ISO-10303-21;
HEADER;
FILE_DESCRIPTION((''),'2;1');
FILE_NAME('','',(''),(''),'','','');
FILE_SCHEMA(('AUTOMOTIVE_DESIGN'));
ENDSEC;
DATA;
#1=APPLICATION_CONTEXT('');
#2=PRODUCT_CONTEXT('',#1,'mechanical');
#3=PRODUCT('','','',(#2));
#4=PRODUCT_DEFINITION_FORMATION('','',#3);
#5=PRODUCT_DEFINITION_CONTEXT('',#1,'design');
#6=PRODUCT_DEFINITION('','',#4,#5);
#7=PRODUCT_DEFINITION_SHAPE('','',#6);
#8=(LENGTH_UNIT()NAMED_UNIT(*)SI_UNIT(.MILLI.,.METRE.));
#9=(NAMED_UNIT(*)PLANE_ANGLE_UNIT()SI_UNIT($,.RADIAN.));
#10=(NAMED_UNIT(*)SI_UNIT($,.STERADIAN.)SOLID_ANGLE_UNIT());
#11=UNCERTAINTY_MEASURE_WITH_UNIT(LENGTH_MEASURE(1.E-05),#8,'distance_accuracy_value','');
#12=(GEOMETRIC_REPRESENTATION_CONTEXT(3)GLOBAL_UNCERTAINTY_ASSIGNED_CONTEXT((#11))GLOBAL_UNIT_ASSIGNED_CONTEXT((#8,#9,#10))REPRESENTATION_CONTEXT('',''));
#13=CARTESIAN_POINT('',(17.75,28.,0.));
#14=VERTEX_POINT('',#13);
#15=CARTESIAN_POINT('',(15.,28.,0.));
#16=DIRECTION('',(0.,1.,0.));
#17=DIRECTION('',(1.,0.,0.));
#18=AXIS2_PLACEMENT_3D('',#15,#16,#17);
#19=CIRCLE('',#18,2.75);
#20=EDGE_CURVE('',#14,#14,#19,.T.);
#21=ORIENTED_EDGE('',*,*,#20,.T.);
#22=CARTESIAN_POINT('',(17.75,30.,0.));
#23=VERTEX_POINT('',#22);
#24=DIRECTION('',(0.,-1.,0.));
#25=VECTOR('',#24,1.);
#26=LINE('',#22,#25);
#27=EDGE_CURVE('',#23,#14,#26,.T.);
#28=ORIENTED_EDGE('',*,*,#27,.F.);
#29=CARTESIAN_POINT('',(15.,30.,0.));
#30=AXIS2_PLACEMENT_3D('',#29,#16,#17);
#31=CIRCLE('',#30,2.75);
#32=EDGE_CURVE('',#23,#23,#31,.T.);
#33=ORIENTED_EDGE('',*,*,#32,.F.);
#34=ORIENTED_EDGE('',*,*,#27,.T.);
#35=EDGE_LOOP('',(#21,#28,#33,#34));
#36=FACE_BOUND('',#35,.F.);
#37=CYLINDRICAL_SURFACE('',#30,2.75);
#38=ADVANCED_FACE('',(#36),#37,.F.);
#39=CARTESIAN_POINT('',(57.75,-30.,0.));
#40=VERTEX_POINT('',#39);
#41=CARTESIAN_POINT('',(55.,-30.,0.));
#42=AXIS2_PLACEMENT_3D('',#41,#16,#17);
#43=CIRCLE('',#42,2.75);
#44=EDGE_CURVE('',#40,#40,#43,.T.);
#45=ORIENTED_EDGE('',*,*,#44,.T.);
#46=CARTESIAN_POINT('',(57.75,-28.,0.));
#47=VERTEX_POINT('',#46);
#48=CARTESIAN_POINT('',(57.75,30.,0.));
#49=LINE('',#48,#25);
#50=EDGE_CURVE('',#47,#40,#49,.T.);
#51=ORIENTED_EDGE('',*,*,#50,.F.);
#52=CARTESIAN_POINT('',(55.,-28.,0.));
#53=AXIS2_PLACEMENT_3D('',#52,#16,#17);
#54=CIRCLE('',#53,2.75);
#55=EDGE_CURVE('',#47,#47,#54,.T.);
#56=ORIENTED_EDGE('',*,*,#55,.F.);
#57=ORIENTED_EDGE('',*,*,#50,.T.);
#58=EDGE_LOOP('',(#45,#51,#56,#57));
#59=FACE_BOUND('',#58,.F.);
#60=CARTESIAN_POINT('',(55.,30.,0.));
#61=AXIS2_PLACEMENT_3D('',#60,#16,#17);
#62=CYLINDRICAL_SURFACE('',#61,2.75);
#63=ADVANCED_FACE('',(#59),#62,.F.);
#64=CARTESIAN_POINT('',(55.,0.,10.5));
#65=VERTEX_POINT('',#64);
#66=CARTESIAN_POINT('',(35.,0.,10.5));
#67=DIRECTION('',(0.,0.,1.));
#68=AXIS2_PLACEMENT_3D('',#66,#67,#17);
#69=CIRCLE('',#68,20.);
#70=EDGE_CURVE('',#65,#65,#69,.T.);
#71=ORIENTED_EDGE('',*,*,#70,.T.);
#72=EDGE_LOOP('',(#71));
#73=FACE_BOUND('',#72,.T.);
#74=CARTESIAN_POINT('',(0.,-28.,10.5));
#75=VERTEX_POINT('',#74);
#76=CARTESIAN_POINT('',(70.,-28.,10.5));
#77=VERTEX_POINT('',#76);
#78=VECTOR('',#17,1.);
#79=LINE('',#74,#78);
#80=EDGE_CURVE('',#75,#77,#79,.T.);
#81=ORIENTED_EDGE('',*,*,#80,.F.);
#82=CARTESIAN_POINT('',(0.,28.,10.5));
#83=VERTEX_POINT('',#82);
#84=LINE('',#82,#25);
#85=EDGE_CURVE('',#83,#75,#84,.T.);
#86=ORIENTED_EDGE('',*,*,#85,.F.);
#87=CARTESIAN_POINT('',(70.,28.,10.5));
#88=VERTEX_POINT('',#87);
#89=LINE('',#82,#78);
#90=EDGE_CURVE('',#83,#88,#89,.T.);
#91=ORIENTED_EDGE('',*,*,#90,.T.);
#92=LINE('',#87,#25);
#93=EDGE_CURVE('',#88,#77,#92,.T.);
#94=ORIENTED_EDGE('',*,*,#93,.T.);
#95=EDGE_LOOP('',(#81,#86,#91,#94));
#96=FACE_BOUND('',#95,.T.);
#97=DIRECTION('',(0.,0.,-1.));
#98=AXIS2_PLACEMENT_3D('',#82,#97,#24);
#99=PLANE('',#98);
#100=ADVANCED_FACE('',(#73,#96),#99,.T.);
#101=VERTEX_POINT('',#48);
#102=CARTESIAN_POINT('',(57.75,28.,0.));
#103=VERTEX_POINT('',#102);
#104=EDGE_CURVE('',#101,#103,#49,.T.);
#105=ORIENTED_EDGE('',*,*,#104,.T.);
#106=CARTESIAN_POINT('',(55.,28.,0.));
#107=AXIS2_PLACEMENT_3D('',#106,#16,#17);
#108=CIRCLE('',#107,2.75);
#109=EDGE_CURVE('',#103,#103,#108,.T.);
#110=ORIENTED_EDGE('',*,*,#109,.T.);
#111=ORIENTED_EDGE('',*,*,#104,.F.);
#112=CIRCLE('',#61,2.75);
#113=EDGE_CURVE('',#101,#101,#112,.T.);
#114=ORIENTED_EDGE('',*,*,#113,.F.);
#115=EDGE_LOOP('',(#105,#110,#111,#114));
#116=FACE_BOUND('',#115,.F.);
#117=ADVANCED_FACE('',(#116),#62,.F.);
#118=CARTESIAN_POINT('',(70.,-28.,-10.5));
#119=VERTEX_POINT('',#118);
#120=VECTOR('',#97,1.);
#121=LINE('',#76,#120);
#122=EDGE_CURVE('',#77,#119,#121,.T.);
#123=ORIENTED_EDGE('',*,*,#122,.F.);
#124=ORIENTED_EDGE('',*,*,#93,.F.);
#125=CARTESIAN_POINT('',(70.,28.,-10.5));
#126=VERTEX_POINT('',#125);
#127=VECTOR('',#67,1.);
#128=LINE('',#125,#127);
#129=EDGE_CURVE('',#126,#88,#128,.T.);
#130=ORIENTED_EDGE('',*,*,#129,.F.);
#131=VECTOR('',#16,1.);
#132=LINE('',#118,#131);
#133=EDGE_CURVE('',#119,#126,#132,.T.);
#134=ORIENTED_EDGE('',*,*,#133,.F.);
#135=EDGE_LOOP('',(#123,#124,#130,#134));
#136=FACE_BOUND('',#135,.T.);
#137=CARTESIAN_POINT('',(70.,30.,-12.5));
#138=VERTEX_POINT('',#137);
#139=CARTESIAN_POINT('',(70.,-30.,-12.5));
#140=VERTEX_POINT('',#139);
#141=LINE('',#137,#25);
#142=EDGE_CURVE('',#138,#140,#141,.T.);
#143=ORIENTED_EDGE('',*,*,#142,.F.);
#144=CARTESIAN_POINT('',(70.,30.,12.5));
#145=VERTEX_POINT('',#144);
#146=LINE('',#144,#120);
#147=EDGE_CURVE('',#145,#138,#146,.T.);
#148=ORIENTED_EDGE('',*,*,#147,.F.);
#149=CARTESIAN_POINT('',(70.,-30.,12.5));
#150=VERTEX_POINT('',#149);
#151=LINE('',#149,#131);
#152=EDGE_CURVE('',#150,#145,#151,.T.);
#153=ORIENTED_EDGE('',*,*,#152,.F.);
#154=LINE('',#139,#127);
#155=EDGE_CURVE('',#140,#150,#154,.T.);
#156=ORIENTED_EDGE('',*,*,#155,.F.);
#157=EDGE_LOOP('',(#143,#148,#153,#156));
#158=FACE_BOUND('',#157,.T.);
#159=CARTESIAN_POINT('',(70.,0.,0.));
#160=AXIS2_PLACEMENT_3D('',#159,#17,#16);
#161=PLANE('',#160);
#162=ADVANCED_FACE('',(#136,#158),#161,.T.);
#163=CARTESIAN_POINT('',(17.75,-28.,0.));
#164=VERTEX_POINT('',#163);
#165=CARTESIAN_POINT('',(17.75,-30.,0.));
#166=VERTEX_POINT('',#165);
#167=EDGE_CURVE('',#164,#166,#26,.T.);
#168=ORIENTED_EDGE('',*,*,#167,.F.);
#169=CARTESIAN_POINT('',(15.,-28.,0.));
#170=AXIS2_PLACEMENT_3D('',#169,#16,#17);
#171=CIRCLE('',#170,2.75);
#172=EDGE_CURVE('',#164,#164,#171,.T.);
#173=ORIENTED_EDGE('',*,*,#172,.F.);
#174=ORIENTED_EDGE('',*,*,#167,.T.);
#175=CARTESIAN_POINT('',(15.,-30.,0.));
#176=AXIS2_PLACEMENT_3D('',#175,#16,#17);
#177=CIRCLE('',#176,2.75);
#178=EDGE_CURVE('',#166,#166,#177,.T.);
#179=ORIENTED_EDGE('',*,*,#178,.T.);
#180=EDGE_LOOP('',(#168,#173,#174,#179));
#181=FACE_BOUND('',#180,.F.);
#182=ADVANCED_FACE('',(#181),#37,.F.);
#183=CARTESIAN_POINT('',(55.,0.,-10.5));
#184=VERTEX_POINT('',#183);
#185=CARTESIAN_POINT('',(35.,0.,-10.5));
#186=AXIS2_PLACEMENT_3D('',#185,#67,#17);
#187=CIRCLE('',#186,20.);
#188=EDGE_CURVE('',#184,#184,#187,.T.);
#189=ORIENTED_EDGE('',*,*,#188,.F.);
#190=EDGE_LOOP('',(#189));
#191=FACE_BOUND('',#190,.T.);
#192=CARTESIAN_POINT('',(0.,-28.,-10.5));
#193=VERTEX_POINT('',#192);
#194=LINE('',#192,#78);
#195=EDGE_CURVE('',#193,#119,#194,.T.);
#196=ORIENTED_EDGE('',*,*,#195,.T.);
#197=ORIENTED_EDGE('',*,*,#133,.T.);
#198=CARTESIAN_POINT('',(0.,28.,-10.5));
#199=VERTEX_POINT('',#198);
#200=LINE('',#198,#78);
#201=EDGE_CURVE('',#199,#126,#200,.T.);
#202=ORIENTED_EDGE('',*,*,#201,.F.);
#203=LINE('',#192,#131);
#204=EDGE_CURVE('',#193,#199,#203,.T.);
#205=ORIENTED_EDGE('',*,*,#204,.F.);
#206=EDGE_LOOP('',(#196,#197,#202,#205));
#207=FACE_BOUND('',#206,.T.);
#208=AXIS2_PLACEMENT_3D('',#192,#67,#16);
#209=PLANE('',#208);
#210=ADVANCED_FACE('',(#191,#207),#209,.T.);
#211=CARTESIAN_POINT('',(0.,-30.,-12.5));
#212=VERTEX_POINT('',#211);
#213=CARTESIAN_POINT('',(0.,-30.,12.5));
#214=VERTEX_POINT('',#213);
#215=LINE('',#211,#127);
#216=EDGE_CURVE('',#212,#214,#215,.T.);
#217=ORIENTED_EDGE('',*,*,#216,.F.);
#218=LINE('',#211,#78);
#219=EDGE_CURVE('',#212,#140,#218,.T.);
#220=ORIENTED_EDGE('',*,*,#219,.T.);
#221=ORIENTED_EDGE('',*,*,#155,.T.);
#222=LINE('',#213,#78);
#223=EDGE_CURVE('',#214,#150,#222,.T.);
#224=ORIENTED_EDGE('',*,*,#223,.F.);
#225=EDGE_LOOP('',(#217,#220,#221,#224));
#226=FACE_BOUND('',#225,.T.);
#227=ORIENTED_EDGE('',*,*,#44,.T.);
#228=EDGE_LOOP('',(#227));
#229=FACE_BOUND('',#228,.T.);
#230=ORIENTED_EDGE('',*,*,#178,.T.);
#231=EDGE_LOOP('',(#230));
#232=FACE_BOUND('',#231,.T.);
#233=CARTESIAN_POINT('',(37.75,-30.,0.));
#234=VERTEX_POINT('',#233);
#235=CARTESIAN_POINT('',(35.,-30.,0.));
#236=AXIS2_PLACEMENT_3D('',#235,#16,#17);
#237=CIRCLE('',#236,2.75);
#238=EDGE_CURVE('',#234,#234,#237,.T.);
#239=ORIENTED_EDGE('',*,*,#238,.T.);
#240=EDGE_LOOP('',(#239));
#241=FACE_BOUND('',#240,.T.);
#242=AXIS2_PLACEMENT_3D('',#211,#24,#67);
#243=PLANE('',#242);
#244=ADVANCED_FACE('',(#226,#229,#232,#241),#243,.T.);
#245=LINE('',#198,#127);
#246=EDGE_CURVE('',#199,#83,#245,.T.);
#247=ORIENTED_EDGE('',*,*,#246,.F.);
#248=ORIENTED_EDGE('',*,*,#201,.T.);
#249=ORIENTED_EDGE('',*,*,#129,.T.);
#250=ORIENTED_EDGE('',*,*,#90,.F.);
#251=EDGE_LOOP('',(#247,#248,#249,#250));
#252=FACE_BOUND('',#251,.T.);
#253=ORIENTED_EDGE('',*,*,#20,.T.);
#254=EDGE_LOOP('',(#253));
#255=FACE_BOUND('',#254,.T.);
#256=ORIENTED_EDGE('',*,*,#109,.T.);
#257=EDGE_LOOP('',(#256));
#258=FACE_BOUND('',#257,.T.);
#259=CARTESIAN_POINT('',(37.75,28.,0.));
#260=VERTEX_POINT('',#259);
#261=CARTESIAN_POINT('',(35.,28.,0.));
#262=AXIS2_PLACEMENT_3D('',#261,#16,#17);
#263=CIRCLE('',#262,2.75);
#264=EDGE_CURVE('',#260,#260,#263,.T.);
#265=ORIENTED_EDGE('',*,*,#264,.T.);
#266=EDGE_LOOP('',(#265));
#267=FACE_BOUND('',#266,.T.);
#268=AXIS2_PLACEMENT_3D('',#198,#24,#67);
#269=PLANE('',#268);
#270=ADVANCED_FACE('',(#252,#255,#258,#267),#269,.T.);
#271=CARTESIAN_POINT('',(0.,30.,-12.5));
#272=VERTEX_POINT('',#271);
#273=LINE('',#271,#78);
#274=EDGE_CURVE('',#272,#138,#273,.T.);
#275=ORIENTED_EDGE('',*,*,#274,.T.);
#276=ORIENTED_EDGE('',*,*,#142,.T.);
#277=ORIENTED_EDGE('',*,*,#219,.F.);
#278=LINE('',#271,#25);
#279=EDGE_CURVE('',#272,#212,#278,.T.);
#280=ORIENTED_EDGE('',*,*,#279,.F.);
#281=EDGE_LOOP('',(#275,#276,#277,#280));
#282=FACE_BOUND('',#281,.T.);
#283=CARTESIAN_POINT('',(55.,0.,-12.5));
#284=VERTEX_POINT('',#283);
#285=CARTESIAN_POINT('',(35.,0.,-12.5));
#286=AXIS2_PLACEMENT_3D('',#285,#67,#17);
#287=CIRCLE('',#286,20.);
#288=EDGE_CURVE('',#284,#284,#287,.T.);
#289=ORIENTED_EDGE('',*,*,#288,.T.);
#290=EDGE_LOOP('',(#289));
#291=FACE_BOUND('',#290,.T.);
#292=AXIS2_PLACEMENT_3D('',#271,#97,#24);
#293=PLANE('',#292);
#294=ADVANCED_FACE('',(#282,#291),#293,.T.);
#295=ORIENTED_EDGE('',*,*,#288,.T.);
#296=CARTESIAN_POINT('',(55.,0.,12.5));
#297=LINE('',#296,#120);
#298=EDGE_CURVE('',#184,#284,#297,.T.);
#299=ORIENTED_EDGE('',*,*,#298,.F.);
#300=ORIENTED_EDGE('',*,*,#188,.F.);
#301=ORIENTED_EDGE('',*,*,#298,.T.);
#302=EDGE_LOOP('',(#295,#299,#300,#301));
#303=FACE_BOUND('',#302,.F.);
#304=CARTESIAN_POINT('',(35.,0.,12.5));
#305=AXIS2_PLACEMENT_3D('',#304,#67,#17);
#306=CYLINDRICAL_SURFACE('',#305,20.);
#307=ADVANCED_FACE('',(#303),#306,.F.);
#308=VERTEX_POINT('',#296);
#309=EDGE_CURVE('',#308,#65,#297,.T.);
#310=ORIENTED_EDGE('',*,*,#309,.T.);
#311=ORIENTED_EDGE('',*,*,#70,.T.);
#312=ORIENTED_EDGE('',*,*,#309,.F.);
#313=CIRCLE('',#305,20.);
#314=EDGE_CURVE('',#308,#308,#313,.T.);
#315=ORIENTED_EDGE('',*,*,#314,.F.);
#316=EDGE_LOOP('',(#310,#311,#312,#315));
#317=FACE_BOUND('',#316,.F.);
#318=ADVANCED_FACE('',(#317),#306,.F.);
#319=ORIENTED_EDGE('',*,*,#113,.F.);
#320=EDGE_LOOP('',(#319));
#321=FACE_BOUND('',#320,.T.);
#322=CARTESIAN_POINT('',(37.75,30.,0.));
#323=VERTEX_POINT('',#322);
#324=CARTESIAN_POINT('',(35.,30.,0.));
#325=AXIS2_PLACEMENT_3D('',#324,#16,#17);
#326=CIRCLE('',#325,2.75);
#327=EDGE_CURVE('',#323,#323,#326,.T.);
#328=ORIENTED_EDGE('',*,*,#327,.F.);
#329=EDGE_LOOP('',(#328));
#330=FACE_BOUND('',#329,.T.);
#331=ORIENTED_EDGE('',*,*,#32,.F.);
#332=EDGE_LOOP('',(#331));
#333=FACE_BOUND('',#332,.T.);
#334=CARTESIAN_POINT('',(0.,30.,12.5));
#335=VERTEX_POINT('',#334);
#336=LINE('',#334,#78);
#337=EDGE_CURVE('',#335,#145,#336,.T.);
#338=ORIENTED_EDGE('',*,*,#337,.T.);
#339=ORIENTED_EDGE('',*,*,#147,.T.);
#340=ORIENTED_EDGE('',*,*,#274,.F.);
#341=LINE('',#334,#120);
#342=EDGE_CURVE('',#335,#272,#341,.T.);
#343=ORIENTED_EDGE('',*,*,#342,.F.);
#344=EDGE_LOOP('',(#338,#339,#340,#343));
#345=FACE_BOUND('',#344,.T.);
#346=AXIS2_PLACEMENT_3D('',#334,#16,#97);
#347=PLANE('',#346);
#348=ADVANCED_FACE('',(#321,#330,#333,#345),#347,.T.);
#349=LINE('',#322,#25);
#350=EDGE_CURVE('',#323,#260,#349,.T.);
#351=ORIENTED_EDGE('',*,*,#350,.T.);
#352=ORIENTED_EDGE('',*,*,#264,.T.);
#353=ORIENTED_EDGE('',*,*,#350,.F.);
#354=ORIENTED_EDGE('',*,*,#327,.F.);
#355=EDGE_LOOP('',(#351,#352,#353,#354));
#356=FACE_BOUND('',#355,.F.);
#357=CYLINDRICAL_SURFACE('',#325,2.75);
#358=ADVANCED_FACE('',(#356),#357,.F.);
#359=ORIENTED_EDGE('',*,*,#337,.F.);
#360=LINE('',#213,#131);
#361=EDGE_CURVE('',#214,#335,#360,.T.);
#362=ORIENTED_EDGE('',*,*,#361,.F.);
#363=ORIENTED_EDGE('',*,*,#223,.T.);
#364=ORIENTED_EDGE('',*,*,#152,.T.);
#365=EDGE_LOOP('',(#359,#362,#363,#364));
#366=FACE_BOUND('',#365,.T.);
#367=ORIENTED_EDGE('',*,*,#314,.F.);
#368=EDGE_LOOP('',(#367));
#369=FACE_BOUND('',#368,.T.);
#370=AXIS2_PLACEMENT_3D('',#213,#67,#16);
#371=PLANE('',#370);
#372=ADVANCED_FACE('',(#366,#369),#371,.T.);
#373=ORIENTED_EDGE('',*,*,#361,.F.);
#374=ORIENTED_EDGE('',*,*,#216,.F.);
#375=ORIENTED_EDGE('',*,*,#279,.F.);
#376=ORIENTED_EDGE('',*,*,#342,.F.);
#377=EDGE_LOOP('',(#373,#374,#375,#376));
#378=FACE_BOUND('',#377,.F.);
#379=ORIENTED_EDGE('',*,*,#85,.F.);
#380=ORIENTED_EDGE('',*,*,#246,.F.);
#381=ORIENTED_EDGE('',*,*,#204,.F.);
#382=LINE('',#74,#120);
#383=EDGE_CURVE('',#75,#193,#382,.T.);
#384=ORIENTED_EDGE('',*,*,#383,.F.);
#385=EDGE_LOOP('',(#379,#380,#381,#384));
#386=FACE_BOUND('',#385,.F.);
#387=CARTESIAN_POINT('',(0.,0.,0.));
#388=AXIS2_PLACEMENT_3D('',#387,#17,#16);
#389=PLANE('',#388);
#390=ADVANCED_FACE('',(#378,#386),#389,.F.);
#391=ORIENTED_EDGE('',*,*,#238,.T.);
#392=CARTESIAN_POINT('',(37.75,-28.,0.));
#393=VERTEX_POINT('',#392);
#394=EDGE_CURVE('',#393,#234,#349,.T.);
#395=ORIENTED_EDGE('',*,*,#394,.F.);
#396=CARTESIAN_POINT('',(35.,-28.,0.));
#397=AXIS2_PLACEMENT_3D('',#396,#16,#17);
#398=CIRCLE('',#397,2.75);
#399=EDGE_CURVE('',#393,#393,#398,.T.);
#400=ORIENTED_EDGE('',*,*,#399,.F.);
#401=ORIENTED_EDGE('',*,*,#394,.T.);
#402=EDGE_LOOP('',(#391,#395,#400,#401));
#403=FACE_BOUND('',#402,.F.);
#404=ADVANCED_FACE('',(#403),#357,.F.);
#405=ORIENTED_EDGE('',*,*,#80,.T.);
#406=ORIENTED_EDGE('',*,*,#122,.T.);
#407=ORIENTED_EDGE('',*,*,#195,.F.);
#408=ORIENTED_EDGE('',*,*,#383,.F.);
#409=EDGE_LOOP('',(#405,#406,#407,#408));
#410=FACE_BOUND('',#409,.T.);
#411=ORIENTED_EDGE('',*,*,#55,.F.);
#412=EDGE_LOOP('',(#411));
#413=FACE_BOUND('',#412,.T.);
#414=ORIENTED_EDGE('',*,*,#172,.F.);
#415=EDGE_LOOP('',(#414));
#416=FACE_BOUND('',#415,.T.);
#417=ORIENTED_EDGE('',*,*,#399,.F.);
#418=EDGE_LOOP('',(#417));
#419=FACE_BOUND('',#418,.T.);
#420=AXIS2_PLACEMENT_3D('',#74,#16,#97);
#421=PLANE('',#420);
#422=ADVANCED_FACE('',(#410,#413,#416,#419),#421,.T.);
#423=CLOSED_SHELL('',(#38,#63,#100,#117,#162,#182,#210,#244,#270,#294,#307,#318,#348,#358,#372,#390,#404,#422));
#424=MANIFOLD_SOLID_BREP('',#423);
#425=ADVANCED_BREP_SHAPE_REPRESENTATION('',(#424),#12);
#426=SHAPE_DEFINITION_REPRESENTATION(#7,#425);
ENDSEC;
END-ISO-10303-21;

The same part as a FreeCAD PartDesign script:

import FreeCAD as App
import Part
import Sketcher

doc = App.newDocument("Part")
body = doc.addObject("PartDesign::Body", "Body")

# Sketch on YZ plane
sketch1 = doc.addObject("Sketcher::SketchObject", "Sketch")
body.addObject(sketch1)
sketch1.AttachmentSupport = (doc.YZ_Plane, [""])
sketch1.MapMode = "FlatFace"
sketch1.addGeometry([
    Part.LineSegment(App.Vector(30, 12, 0), App.Vector(-30, 12, 0)),  # 0
    Part.LineSegment(App.Vector(-30, 12, 0), App.Vector(-30, -12, 0)),  # 1
    Part.LineSegment(App.Vector(-30, -12, 0), App.Vector(30, -12, 0)),  # 2
    Part.LineSegment(App.Vector(30, -12, 0), App.Vector(30, 12, 0)),  # 3
    Part.LineSegment(App.Vector(28, 10, 0), App.Vector(28, -10, 0)),  # 4
    Part.LineSegment(App.Vector(28, -10, 0), App.Vector(-28, -10, 0)),  # 5
    Part.LineSegment(App.Vector(-28, -10, 0), App.Vector(-28, 10, 0)),  # 6
    Part.LineSegment(App.Vector(-28, 10, 0), App.Vector(28, 10, 0)),  # 7
], False)
sketch1.addConstraint([
    Sketcher.Constraint("Coincident", 0, 2, 1, 1),
    Sketcher.Constraint("Coincident", 1, 2, 2, 1),
    Sketcher.Constraint("Coincident", 2, 2, 3, 1),
    Sketcher.Constraint("Coincident", 3, 2, 0, 1),
    Sketcher.Constraint("Coincident", 4, 2, 5, 1),
    Sketcher.Constraint("Coincident", 5, 2, 6, 1),
    Sketcher.Constraint("Coincident", 6, 2, 7, 1),
    Sketcher.Constraint("Coincident", 7, 2, 4, 1),
    Sketcher.Constraint("Horizontal", 0),
    Sketcher.Constraint("Vertical", 1),
    Sketcher.Constraint("Horizontal", 2),
    Sketcher.Constraint("Vertical", 3),
    Sketcher.Constraint("Vertical", 4),
    Sketcher.Constraint("Horizontal", 5),
    Sketcher.Constraint("Vertical", 6),
    Sketcher.Constraint("Horizontal", 7),
    Sketcher.Constraint("Symmetric", 0, 2, 2, 2, -1, 1),
    Sketcher.Constraint("Symmetric", 4, 2, 6, 2, -1, 1),
    Sketcher.Constraint("DistanceX", 0, 2, 0, 1, 60.0),
    Sketcher.Constraint("DistanceY", 1, 2, 1, 1, 25.0),
    Sketcher.Constraint("DistanceX", 4, 2, 2, 2, 2.0),
    Sketcher.Constraint("DistanceY", 2, 2, 4, 2, 2.0),
])
pad1 = doc.addObject("PartDesign::Pad", "Pad")
body.addObject(pad1)
pad1.Profile = sketch1
pad1.Length = 70

# Sketch on XZ plane
sketch2 = doc.addObject("Sketcher::SketchObject", "Sketch001")
body.addObject(sketch2)
sketch2.AttachmentSupport = (doc.XZ_Plane, [""])
sketch2.MapMode = "FlatFace"
sketch2.AttachmentOffset = App.Placement(App.Vector(0, 0, -30), App.Rotation())
sketch2.addGeometry([
    Part.Circle(App.Vector(15, 0, 0), App.Vector(0, 0, 1), 2.8),
    Part.Circle(App.Vector(35, 0, 0), App.Vector(0, 0, 1), 2.8),
    Part.Circle(App.Vector(55, 0, 0), App.Vector(0, 0, 1), 2.8),
], False)
sketch2.addConstraint([
    Sketcher.Constraint("Equal", 0, 1),
    Sketcher.Constraint("Equal", 1, 2),
    Sketcher.Constraint("PointOnObject", 0, 3, -1),
    Sketcher.Constraint("PointOnObject", 1, 3, -1),
    Sketcher.Constraint("PointOnObject", 2, 3, -1),
    Sketcher.Constraint("Diameter", 0, 5.5),
    Sketcher.Constraint("DistanceX", -1, 1, 0, 3, 15.0),
    Sketcher.Constraint("DistanceX", 0, 3, 1, 3, 20.0),
    Sketcher.Constraint("DistanceX", 1, 3, 2, 3, 20.0),
])
pocket1 = doc.addObject("PartDesign::Pocket", "Pocket")
body.addObject(pocket1)
pocket1.Profile = sketch2
pocket1.Type = "ThroughAll"
pocket1.Reversed = True

# Sketch on XY plane
sketch3 = doc.addObject("Sketcher::SketchObject", "Sketch002")
body.addObject(sketch3)
sketch3.AttachmentSupport = (doc.XY_Plane, [""])
sketch3.MapMode = "FlatFace"
sketch3.AttachmentOffset = App.Placement(App.Vector(0, 0, 12.5), App.Rotation())
sketch3.addGeometry(Part.Circle(App.Vector(35, 0, 0), App.Vector(0, 0, 1), 20), False)
sketch3.addConstraint([
    Sketcher.Constraint("PointOnObject", 0, 3, -1),
    Sketcher.Constraint("Diameter", 0, 40.0),
    Sketcher.Constraint("DistanceX", -1, 1, 0, 3, 35.0),
])
pocket2 = doc.addObject("PartDesign::Pocket", "Pocket001")
body.addObject(pocket2)
pocket2.Profile = sketch3
pocket2.Length = 30

doc.recompute()
